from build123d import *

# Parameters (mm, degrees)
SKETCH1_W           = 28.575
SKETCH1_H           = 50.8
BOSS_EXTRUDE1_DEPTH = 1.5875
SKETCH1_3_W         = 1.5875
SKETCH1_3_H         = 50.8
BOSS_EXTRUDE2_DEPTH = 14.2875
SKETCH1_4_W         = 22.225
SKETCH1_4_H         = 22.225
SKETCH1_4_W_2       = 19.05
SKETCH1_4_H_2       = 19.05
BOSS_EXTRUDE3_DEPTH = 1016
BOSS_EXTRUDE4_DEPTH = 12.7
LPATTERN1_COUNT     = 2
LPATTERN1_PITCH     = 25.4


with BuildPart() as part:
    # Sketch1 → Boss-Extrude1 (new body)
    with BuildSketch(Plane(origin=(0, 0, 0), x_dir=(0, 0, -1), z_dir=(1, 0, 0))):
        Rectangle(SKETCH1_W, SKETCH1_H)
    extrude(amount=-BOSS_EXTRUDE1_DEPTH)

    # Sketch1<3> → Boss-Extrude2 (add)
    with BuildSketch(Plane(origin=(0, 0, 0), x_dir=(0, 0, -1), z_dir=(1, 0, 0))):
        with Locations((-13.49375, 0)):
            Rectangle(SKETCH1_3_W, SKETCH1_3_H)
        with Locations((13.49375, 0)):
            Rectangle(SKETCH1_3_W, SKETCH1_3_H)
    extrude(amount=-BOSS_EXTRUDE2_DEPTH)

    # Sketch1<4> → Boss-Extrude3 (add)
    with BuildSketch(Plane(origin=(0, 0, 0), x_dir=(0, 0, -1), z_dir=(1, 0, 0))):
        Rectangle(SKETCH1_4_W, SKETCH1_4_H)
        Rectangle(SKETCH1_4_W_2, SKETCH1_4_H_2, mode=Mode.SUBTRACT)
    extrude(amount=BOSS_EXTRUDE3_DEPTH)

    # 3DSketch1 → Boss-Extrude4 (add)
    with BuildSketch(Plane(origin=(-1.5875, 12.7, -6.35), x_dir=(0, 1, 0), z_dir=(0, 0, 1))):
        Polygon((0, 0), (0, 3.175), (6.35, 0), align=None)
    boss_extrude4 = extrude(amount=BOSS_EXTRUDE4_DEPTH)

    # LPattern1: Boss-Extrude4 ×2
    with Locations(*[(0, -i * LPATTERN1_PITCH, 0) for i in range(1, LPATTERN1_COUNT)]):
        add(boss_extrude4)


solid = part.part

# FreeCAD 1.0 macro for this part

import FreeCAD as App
import Part
import Sketcher
Q = App.Units.Quantity

doc = App.newDocument("Part")
body = doc.addObject("PartDesign::Body", "Body")

# Sketch on YZ plane
sketch1 = doc.addObject("Sketcher::SketchObject", "Sketch")
body.addObject(sketch1)
sketch1.AttachmentSupport = (doc.YZ_Plane, [""])
sketch1.MapMode = "FlatFace"
sketch1.addGeometry([
    Part.LineSegment(App.Vector(25, 14, 0), App.Vector(-25, 14, 0)),
    Part.LineSegment(App.Vector(-25, 14, 0), App.Vector(-25, -14, 0)),
    Part.LineSegment(App.Vector(-25, -14, 0), App.Vector(25, -14, 0)),
    Part.LineSegment(App.Vector(25, -14, 0), App.Vector(25, 14, 0)),
], False)
sketch1.addConstraint([
    Sketcher.Constraint("Coincident", 0, 2, 1, 1),
    Sketcher.Constraint("Coincident", 1, 2, 2, 1),
    Sketcher.Constraint("Coincident", 2, 2, 3, 1),
    Sketcher.Constraint("Coincident", 3, 2, 0, 1),
    Sketcher.Constraint("Horizontal", 0),
    Sketcher.Constraint("Vertical", 1),
    Sketcher.Constraint("Horizontal", 2),
    Sketcher.Constraint("Vertical", 3),
    Sketcher.Constraint("Symmetric", 0, 2, 2, 2, -1, 1),
    Sketcher.Constraint("DistanceX", 0, 2, 0, 1, Q("2 in")),
    Sketcher.Constraint("DistanceY", 1, 2, 1, 1, Q("1.125 in")),
])
pad1 = doc.addObject("PartDesign::Pad", "Pad")
body.addObject(pad1)
pad1.Profile = sketch1
pad1.Length = Q("0.0625 in")
pad1.Reversed = True

# Sketch on YZ plane
sketch2 = doc.addObject("Sketcher::SketchObject", "Sketch001")
body.addObject(sketch2)
sketch2.AttachmentSupport = (doc.YZ_Plane, [""])
sketch2.MapMode = "FlatFace"
sketch2.addGeometry([
    Part.LineSegment(App.Vector(25.4, 14.3, 0), App.Vector(-25.4, 14.3, 0)),  # 0
    Part.LineSegment(App.Vector(-25.4, 14.3, 0), App.Vector(-25.4, 12.7, 0)),  # 1
    Part.LineSegment(App.Vector(-25.4, 12.7, 0), App.Vector(25.4, 12.7, 0)),  # 2
    Part.LineSegment(App.Vector(25.4, 12.7, 0), App.Vector(25.4, 14.3, 0)),  # 3
    Part.LineSegment(App.Vector(25.4, -12.7, 0), App.Vector(-25.4, -12.7, 0)),  # 4
    Part.LineSegment(App.Vector(-25.4, -12.7, 0), App.Vector(-25.4, -14.3, 0)),  # 5
    Part.LineSegment(App.Vector(-25.4, -14.3, 0), App.Vector(25.4, -14.3, 0)),  # 6
    Part.LineSegment(App.Vector(25.4, -14.3, 0), App.Vector(25.4, -12.7, 0)),  # 7
], False)
sketch2.addConstraint([
    Sketcher.Constraint("Coincident", 0, 2, 1, 1),
    Sketcher.Constraint("Coincident", 1, 2, 2, 1),
    Sketcher.Constraint("Coincident", 2, 2, 3, 1),
    Sketcher.Constraint("Coincident", 3, 2, 0, 1),
    Sketcher.Constraint("Coincident", 4, 2, 5, 1),
    Sketcher.Constraint("Coincident", 5, 2, 6, 1),
    Sketcher.Constraint("Coincident", 6, 2, 7, 1),
    Sketcher.Constraint("Coincident", 7, 2, 4, 1),
    Sketcher.Constraint("Horizontal", 0),
    Sketcher.Constraint("Vertical", 1),
    Sketcher.Constraint("Horizontal", 2),
    Sketcher.Constraint("Vertical", 3),
    Sketcher.Constraint("Horizontal", 4),
    Sketcher.Constraint("Vertical", 5),
    Sketcher.Constraint("Horizontal", 6),
    Sketcher.Constraint("Vertical", 7),
    Sketcher.Constraint("Symmetric", 2, 2, 4, 2, -1, 1),
    Sketcher.Constraint("Symmetric", 0, 2, 6, 2, -1, 1),
    Sketcher.Constraint("Vertical", 1, 2, 4, 2),
    Sketcher.Constraint("DistanceX", 0, 2, 0, 1, Q("2 in")),
    Sketcher.Constraint("DistanceY", 4, 2, 1, 2, Q("1 in")),
    Sketcher.Constraint("DistanceY", 1, 2, 1, 1, Q("0.0625 in")),
])
pad2 = doc.addObject("PartDesign::Pad", "Pad001")
body.addObject(pad2)
pad2.Profile = sketch2
pad2.Length = Q("0.5625 in")
pad2.Reversed = True

# Sketch on YZ plane
sketch3 = doc.addObject("Sketcher::SketchObject", "Sketch002")
body.addObject(sketch3)
sketch3.AttachmentSupport = (doc.YZ_Plane, [""])
sketch3.MapMode = "FlatFace"
sketch3.addGeometry([
    Part.LineSegment(App.Vector(11, 11, 0), App.Vector(-11, 11, 0)),  # 0
    Part.LineSegment(App.Vector(-11, 11, 0), App.Vector(-11, -11, 0)),  # 1
    Part.LineSegment(App.Vector(-11, -11, 0), App.Vector(11, -11, 0)),  # 2
    Part.LineSegment(App.Vector(11, -11, 0), App.Vector(11, 11, 0)),  # 3
    Part.LineSegment(App.Vector(-10, -10, 0), App.Vector(-10, 10, 0)),  # 4
    Part.LineSegment(App.Vector(-10, 10, 0), App.Vector(10, 10, 0)),  # 5
    Part.LineSegment(App.Vector(10, 10, 0), App.Vector(10, -10, 0)),  # 6
    Part.LineSegment(App.Vector(10, -10, 0), App.Vector(-10, -10, 0)),  # 7
], False)
sketch3.addConstraint([
    Sketcher.Constraint("Coincident", 0, 2, 1, 1),
    Sketcher.Constraint("Coincident", 1, 2, 2, 1),
    Sketcher.Constraint("Coincident", 2, 2, 3, 1),
    Sketcher.Constraint("Coincident", 3, 2, 0, 1),
    Sketcher.Constraint("Coincident", 4, 2, 5, 1),
    Sketcher.Constraint("Coincident", 5, 2, 6, 1),
    Sketcher.Constraint("Coincident", 6, 2, 7, 1),
    Sketcher.Constraint("Coincident", 7, 2, 4, 1),
    Sketcher.Constraint("Horizontal", 0),
    Sketcher.Constraint("Vertical", 1),
    Sketcher.Constraint("Horizontal", 2),
    Sketcher.Constraint("Vertical", 3),
    Sketcher.Constraint("Vertical", 4),
    Sketcher.Constraint("Horizontal", 5),
    Sketcher.Constraint("Vertical", 6),
    Sketcher.Constraint("Horizontal", 7),
    Sketcher.Constraint("Symmetric", 0, 2, 2, 2, -1, 1),
    Sketcher.Constraint("Symmetric", 4, 2, 6, 2, -1, 1),
    Sketcher.Constraint("Equal", 2, 1),
    Sketcher.Constraint("Equal", 7, 4),
    Sketcher.Constraint("DistanceX", 5, 1, 5, 2, Q("0.75 in")),
    Sketcher.Constraint("DistanceX", 0, 2, 0, 1, Q("0.875 in")),
])
pad3 = doc.addObject("PartDesign::Pad", "Pad002")
body.addObject(pad3)
pad3.Profile = sketch3
pad3.Length = Q("40 in")

# Sketch on XY plane
sketch4 = doc.addObject("Sketcher::SketchObject", "Sketch003")
body.addObject(sketch4)
sketch4.AttachmentSupport = (doc.XY_Plane, [""])
sketch4.MapMode = "FlatFace"
sketch4.AttachmentOffset = App.Placement(App.Vector(0, 0, -0.25 * 25.4), App.Rotation())
sketch4.addGeometry([
    Part.LineSegment(App.Vector(-4.8, 12.7, 0), App.Vector(-1.6, 12.7, 0)),
    Part.LineSegment(App.Vector(-1.6, 12.7, 0), App.Vector(-1.6, 19.1, 0)),
    Part.LineSegment(App.Vector(-1.6, 19.1, 0), App.Vector(-4.8, 12.7, 0)),
], False)
sketch4.addConstraint([
    Sketcher.Constraint("Coincident", 0, 2, 1, 1),
    Sketcher.Constraint("Coincident", 1, 2, 2, 1),
    Sketcher.Constraint("Coincident", 2, 2, 0, 1),
    Sketcher.Constraint("Horizontal", 0),
    Sketcher.Constraint("Vertical", 1),
    Sketcher.Constraint("DistanceY", 1, 1, 1, 2, Q("0.25 in")),
    Sketcher.Constraint("DistanceY", -1, 1, 0, 2, Q("0.5 in")),
    Sketcher.Constraint("DistanceX", 0, 1, 0, 2, Q("0.125 in")),
    Sketcher.Constraint("DistanceX", 0, 2, -1, 1, Q("0.0625 in")),
])
pad4 = doc.addObject("PartDesign::Pad", "Pad003")
body.addObject(pad4)
pad4.Profile = sketch4
pad4.Length = Q("0.5 in")
doc.recompute()

linearpattern = doc.addObject("PartDesign::LinearPattern", "LinearPattern")
body.addObject(linearpattern)
linearpattern.Originals = [pad4]
linearpattern.Direction = (doc.Y_Axis, [""])
linearpattern.Mode = "offset"
linearpattern.Offset = Q("1 in")
linearpattern.Occurrences = 2
linearpattern.Reversed = True
body.Tip = linearpattern

doc.recompute()
